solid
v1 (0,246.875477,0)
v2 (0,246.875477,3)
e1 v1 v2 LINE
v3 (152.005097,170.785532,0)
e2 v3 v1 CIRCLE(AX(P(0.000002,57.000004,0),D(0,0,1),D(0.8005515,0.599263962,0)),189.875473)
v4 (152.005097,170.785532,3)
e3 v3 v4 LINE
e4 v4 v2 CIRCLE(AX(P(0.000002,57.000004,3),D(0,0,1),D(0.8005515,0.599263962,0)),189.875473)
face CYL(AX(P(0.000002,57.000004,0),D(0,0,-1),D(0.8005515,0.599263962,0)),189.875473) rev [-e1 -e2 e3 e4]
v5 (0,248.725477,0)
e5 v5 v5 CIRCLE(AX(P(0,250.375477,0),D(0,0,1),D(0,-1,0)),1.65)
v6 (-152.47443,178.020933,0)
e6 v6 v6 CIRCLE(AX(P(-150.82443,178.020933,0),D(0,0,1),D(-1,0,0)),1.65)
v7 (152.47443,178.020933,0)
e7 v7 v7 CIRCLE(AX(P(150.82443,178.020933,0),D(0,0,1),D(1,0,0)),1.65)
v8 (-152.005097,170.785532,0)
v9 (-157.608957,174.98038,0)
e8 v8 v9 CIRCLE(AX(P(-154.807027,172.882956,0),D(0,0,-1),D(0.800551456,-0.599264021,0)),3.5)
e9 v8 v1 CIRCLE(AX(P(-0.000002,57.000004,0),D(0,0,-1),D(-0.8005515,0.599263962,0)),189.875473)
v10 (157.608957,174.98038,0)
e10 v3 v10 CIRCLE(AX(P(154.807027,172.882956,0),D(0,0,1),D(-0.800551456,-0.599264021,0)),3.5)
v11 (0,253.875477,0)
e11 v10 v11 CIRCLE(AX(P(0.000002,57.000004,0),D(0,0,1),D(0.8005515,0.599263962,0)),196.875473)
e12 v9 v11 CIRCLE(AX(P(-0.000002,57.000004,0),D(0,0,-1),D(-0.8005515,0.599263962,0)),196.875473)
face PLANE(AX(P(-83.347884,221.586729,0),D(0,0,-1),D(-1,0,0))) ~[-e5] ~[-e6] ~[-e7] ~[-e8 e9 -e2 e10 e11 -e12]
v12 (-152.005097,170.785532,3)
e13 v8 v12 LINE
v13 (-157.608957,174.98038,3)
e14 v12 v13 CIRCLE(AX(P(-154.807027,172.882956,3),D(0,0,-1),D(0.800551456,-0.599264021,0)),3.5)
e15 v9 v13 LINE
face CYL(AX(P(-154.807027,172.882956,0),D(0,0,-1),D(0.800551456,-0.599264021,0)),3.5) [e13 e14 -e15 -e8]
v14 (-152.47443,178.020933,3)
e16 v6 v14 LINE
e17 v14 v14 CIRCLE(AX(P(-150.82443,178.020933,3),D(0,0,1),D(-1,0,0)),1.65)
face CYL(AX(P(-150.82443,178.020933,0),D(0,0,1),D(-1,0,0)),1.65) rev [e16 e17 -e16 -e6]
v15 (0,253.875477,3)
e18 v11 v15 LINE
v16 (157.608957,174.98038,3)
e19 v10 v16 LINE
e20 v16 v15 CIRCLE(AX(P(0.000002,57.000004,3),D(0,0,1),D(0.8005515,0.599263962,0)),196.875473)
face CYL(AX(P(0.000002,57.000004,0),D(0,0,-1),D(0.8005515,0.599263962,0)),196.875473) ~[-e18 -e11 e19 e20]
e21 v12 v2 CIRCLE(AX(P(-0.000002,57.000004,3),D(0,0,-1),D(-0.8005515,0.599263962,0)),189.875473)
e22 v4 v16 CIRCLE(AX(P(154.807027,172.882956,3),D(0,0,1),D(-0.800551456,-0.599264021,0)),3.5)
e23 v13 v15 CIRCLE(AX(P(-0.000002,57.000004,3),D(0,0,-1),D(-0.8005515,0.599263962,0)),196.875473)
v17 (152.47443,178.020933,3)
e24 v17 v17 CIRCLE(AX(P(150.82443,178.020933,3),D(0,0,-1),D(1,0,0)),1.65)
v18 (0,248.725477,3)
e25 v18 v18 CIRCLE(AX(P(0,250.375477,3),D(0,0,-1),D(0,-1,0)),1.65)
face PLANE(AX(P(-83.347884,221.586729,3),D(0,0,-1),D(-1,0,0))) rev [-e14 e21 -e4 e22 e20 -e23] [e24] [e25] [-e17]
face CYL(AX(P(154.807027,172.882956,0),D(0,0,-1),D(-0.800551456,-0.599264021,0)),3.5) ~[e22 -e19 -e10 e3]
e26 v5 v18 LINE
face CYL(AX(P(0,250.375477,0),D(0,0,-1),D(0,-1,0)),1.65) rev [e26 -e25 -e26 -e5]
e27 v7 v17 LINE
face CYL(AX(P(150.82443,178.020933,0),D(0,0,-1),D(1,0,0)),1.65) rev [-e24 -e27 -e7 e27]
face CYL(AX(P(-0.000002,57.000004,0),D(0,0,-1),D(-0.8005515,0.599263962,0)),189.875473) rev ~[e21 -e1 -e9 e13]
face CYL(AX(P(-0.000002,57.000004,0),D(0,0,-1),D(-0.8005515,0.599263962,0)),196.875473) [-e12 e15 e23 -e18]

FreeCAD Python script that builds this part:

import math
import FreeCAD as App
import Part
import Sketcher
Q = App.Units.Quantity

doc = App.newDocument("Part")
params = doc.addObject("Spreadsheet::Sheet", "Params")
for row, (alias, value) in enumerate([
    ("sketch1_radius", "3.5 mm"),
    ("pad1_length", "3 mm"),
    ("sketch2_diameter", "3.3 mm"),
], start=1):
    params.set(f"A{row}", alias)
    params.set(f"B{row}", "=" + value)
    params.setAlias(f"B{row}", alias)

body = doc.addObject("PartDesign::Body", "Body")

# Sketch on XY plane
sketch1 = body.newObject("Sketcher::SketchObject", "Sketch")
sketch1.AttachmentSupport = (doc.getObject("XY_Plane"), [""])
sketch1.MapMode = "FlatFace"
sketch1.addGeometry(Part.ArcOfCircle(Part.Circle(App.Vector(0.000002, 0.000004, 0), App.Vector(0, 0, 1), 189.875473), math.radians(36.817201), math.radians(90.000001)), False)
sketch1.addGeometry(Part.ArcOfCircle(Part.Circle(App.Vector(154.807027, 115.882956, 0), App.Vector(0, 0, 1), 3.5), math.radians(-143.182795), math.radians(36.817205)), False)
sketch1.addGeometry(Part.ArcOfCircle(Part.Circle(App.Vector(0.000002, 0.000004, 0), App.Vector(0, 0, 1), 196.875473), math.radians(36.817201), math.radians(90.000001)), False)
sketch1.addGeometry(Part.LineSegment(App.Vector(0, 196.875477, 0), App.Vector(0, 189.875477, 0)), False)
sketch1.addConstraint(Sketcher.Constraint("Tangent", 0, 1, 1, 1))
sketch1.addConstraint(Sketcher.Constraint("Tangent", 1, 2, 2, 1))
sketch1.addConstraint(Sketcher.Constraint("Coincident", 2, 2, 3, 1))
sketch1.addConstraint(Sketcher.Constraint("Coincident", 3, 2, 0, 2))
sketch1.addConstraint(Sketcher.Constraint("Vertical", 3))
sketch1.addConstraint(Sketcher.Constraint("Coincident", 0, 3, -1, 1))
sketch1.addConstraint(Sketcher.Constraint("Coincident", 2, 3, -1, 1))
sketch1.addConstraint(Sketcher.Constraint("PointOnObject", 2, 2, -2))
sketch1.addConstraint(Sketcher.Constraint("Radius", 1, Q("3.5 mm")))
sketch1.addConstraint(Sketcher.Constraint("Radius", 0, Q("189.875473 mm")))
sketch1.addConstraint(Sketcher.Constraint("DistanceY", -1, 1, 1, 2, Q("117.98038 mm")))
sketch1.setExpression("Constraints[8]", "Params.sketch1_radius")
pad1 = body.newObject("PartDesign::Pad", "Pad")
pad1.Profile = sketch1
pad1.setExpression("Length", "Params.pad1_length")

# Sketch on XY plane
sketch2 = body.newObject("Sketcher::SketchObject", "Sketch001")
sketch2.AttachmentSupport = (doc.getObject("XY_Plane"), [""])
sketch2.MapMode = "FlatFace"
sketch2.addGeometry(Part.Circle(App.Vector(150.82443, 121.020933, 0), App.Vector(0, 0, 1), 1.65), False)
sketch2.addGeometry(Part.ArcOfCircle(Part.Circle(App.Vector(0, 193.375477, 0), App.Vector(0, 0, 1), 1.65), math.radians(-90), math.radians(90)), False)
sketch2.addGeometry(Part.LineSegment(App.Vector(0, 195.025477, 0), App.Vector(0, 191.725477, 0)), False)
sketch2.addConstraint(Sketcher.Constraint("Coincident", 1, 1, 2, 2))
sketch2.addConstraint(Sketcher.Constraint("Coincident", 2, 1, 1, 2))
sketch2.addConstraint(Sketcher.Constraint("Vertical", 2))
sketch2.addConstraint(Sketcher.Constraint("Equal", 0, 1))
sketch2.addConstraint(Sketcher.Constraint("PointOnObject", 1, 3, -2))
sketch2.addConstraint(Sketcher.Constraint("PointOnObject", 1, 1, -2))
sketch2.addConstraint(Sketcher.Constraint("Diameter", 0, Q("3.3 mm")))
sketch2.addConstraint(Sketcher.Constraint("DistanceX", -1, 1, 0, 3, Q("150.82443 mm")))
sketch2.addConstraint(Sketcher.Constraint("DistanceY", -1, 1, 0, 3, Q("121.020933 mm")))
sketch2.addConstraint(Sketcher.Constraint("DistanceY", -1, 1, 1, 3, Q("193.375477 mm")))
sketch2.setExpression("Constraints[6]", "Params.sketch2_diameter")
pocket1 = body.newObject("PartDesign::Pocket", "Pocket")
pocket1.Profile = sketch2
pocket1.Type = "ThroughAll"
pocket1.Midplane = True
doc.recompute()

mirrored = body.newObject("PartDesign::Mirrored", "Mirrored")
mirrored.Originals = [pad1, pocket1]
mirrored.MirrorPlane = (doc.getObject("YZ_Plane"), [""])
body.Tip = mirrored
body2 = doc.addObject("PartDesign::Body", "Body001")
doc.recompute()

body.Placement = App.Placement(App.Vector(0, 0, 0), App.Rotation(App.Vector(0, 0, 1), 60))
boolean = body2.newObject("PartDesign::Boolean", "Boolean")
boolean.Type = "Fuse"
boolean.addObjects([body])
body3 = doc.addObject("PartDesign::Body", "Body002")
doc.recompute()

body2.Placement = App.Placement(App.Vector(0, 57, 0), App.Rotation(App.Vector(0, 0, -1), 60))
boolean2 = body3.newObject("PartDesign::Boolean", "Boolean001")
boolean2.Type = "Fuse"
boolean2.addObjects([body2])

doc.recompute()
